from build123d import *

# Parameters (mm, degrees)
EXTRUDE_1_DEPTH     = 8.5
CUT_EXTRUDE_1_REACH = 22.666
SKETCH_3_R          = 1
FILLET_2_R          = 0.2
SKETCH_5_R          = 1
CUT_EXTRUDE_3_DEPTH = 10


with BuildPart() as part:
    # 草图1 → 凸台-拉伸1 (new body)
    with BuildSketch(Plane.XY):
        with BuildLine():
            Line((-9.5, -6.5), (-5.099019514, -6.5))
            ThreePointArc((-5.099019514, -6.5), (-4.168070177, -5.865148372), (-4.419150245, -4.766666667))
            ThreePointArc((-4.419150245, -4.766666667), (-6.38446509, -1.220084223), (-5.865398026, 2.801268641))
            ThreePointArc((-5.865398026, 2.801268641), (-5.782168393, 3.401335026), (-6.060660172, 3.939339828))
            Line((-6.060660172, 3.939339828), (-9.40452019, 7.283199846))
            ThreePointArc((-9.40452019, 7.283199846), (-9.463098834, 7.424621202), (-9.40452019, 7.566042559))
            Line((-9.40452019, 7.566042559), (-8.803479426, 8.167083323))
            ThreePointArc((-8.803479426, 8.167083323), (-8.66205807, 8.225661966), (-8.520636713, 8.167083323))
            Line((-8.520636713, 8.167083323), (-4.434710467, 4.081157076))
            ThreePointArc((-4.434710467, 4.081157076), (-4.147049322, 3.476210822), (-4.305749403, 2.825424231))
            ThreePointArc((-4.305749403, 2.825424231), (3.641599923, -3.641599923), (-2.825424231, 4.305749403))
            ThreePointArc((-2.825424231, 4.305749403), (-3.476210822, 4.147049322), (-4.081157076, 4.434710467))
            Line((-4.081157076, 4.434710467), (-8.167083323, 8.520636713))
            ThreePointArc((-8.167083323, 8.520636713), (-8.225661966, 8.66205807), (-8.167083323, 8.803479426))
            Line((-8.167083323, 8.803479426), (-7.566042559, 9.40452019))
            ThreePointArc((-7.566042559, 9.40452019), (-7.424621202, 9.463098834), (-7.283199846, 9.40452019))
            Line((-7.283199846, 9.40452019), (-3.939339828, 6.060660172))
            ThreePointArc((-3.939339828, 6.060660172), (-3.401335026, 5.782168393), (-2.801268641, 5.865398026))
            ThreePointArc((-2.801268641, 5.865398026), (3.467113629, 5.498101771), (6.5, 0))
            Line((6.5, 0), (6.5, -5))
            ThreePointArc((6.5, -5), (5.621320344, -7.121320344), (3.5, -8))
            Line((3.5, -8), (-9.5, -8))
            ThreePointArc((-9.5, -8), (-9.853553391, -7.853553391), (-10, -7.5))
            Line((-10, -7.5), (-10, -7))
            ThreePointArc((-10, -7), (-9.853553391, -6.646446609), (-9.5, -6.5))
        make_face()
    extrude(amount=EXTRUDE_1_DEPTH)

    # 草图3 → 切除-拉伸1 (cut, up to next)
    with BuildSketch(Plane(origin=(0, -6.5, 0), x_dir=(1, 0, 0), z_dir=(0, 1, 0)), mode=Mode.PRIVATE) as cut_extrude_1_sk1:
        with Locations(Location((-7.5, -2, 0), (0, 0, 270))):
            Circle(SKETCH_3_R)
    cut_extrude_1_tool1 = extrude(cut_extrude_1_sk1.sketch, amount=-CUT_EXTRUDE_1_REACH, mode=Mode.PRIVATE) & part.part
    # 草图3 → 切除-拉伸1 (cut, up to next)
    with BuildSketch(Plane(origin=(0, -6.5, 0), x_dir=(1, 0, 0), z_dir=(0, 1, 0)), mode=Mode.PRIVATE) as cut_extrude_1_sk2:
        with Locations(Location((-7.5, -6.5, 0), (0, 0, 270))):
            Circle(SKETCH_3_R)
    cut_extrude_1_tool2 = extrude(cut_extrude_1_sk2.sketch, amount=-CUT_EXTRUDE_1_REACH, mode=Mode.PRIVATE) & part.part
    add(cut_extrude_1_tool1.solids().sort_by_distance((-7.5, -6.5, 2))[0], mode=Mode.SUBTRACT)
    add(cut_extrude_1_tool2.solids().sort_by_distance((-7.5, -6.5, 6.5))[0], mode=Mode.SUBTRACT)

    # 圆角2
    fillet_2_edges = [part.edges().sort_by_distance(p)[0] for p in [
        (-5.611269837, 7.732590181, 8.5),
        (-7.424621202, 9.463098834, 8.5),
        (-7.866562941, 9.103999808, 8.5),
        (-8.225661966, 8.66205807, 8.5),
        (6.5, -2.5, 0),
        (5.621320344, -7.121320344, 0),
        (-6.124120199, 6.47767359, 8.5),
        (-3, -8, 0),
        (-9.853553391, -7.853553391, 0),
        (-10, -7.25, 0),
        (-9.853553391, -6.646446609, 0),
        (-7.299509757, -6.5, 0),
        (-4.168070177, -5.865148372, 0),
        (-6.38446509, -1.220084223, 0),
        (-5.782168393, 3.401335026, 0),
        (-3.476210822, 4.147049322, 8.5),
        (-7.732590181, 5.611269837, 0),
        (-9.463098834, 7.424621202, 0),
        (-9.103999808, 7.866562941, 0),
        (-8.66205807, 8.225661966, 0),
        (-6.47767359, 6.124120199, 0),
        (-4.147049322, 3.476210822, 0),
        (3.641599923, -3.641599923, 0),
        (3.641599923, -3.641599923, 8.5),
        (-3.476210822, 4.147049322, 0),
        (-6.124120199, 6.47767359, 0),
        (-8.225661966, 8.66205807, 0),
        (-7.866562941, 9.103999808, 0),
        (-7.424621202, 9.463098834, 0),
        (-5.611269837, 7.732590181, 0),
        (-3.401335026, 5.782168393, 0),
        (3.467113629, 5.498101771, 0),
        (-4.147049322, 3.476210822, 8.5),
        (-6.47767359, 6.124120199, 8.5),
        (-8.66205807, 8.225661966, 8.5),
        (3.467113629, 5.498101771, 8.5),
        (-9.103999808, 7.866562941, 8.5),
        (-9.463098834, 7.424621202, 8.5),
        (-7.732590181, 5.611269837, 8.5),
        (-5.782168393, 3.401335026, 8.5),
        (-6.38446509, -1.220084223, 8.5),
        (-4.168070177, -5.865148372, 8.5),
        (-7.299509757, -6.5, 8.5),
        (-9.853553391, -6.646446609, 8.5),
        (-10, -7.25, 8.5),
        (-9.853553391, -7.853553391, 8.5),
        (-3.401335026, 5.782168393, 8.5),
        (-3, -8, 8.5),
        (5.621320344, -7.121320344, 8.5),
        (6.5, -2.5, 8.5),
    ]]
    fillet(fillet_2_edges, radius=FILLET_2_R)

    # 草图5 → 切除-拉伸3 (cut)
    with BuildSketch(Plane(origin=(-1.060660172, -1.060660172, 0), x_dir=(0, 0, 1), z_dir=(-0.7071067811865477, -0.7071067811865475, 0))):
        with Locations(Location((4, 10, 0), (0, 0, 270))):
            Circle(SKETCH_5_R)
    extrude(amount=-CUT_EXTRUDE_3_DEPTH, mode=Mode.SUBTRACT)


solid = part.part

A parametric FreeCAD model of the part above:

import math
import FreeCAD as App
import Part
import Sketcher

V = App.Vector
Q = App.Units.Quantity


def edges_at(feature, points):
    """Names of the edges that pass closest to the given points."""
    edges = feature.Shape.Edges
    near = lambda p: min(range(len(edges)), key=lambda i: edges[i].distToShape(Part.Vertex(*p))[0])
    return sorted({f"Edge{near(p) + 1}" for p in points})

doc = App.newDocument("Part")
body = doc.addObject("PartDesign::Body", "Body")

# Sketch on XY plane
sketch1 = body.newObject("Sketcher::SketchObject", "Sketch")
sketch1.AttachmentSupport = (doc.getObject("XY_Plane"), [""])
sketch1.MapMode = "FlatFace"
sketch1.addGeometry([
    Part.LineSegment(V(-5.1, -6.5, 0), V(-9.5, -6.5, 0)),  # 0
    Part.ArcOfCircle(Part.Circle(V(-9.5, -7, 0), V(0, 0, 1), 0.5), math.radians(90), math.radians(180)),  # 1
    Part.LineSegment(V(-10, -7, 0), V(-10, -7.5, 0)),  # 2
    Part.ArcOfCircle(Part.Circle(V(-9.5, -7.5, 0), V(0, 0, 1), 0.5), math.radians(180), math.radians(270)),  # 3
    Part.LineSegment(V(-9.5, -8, 0), V(3.5, -8, 0)),  # 4
    Part.ArcOfCircle(Part.Circle(V(3.5, -5, 0), V(0, 0, 1), 3), math.radians(-90), math.radians(0)),  # 5
    Part.LineSegment(V(6.5, -5, 0), V(6.5, 0, 0)),  # 6
    Part.ArcOfCircle(Part.Circle(V(0, 0, 0), V(0, 0, 1), 6.5), math.radians(0), math.radians(116)),  # 7
    Part.ArcOfCircle(Part.Circle(V(-3.23, 6.77, 0), V(0, 0, 1), 1), math.radians(-135), math.radians(-64)),  # 8
    Part.LineSegment(V(-3.94, 6.06, 0), V(-7.28, 9.4, 0)),  # 9
    Part.ArcOfCircle(Part.Circle(V(-7.42, 9.26, 0), V(0, 0, 1), 0.2), math.radians(45), math.radians(135)),  # 10
    Part.LineSegment(V(-7.57, 9.4, 0), V(-8.17, 8.8, 0)),  # 11
    Part.ArcOfCircle(Part.Circle(V(-8.03, 8.66, 0), V(0, 0, 1), 0.2), math.radians(135), math.radians(225)),  # 12
    Part.LineSegment(V(-8.17, 8.52, 0), V(-4.08, 4.43, 0)),  # 13
    Part.ArcOfCircle(Part.Circle(V(-3.37, 5.14, 0), V(0, 0, 1), 1), math.radians(-135), math.radians(-57)),  # 14
    Part.ArcOfCircle(Part.Circle(V(0, 0, 0), V(0, 0, 1), 5.15), math.radians(147), math.radians(483)),  # 15
    Part.ArcOfCircle(Part.Circle(V(-5.14, 3.37, 0), V(0, 0, 1), 1), math.radians(-33), math.radians(45)),  # 16
    Part.LineSegment(V(-4.43, 4.08, 0), V(-8.52, 8.17, 0)),  # 17
    Part.ArcOfCircle(Part.Circle(V(-8.66, 8.03, 0), V(0, 0, 1), 0.2), math.radians(45), math.radians(135)),  # 18
    Part.LineSegment(V(-8.8, 8.17, 0), V(-9.4, 7.57, 0)),  # 19
    Part.ArcOfCircle(Part.Circle(V(-9.26, 7.42, 0), V(0, 0, 1), 0.2), math.radians(135), math.radians(225)),  # 20
    Part.LineSegment(V(-9.4, 7.28, 0), V(-6.06, 3.94, 0)),  # 21
    Part.ArcOfCircle(Part.Circle(V(-6.77, 3.23, 0), V(0, 0, 1), 1), math.radians(-26), math.radians(45)),  # 22
    Part.ArcOfCircle(Part.Circle(V(0, 0, 0), V(0, 0, 1), 6.5), math.radians(154), math.radians(227)),  # 23
    Part.ArcOfCircle(Part.Circle(V(-5.1, -5.5, 0), V(0, 0, 1), 1), math.radians(-90), math.radians(47)),  # 24
], False)
sketch1.addConstraint([
    Sketcher.Constraint("Tangent", 0, 2, 1, 1),
    Sketcher.Constraint("Tangent", 1, 2, 2, 1),
    Sketcher.Constraint("Tangent", 2, 2, 3, 1),
    Sketcher.Constraint("Tangent", 3, 2, 4, 1),
    Sketcher.Constraint("Tangent", 4, 2, 5, 1),
    Sketcher.Constraint("Tangent", 5, 2, 6, 1),
    Sketcher.Constraint("Tangent", 6, 2, 7, 1),
    Sketcher.Constraint("Tangent", 7, 2, 8, 2),
    Sketcher.Constraint("Tangent", 8, 1, 9, 1),
    Sketcher.Constraint("Tangent", 9, 2, 10, 1),
    Sketcher.Constraint("Tangent", 10, 2, 11, 1),
    Sketcher.Constraint("Tangent", 11, 2, 12, 1),
    Sketcher.Constraint("Tangent", 12, 2, 13, 1),
    Sketcher.Constraint("Tangent", 13, 2, 14, 1),
    Sketcher.Constraint("Tangent", 14, 2, 15, 2),
    Sketcher.Constraint("Tangent", 15, 1, 16, 1),
    Sketcher.Constraint("Tangent", 16, 2, 17, 1),
    Sketcher.Constraint("Tangent", 17, 2, 18, 1),
    Sketcher.Constraint("Tangent", 18, 2, 19, 1),
    Sketcher.Constraint("Tangent", 19, 2, 20, 1),
    Sketcher.Constraint("Tangent", 20, 2, 21, 1),
    Sketcher.Constraint("Tangent", 21, 2, 22, 2),
    Sketcher.Constraint("Tangent", 22, 1, 23, 1),
    Sketcher.Constraint("Tangent", 23, 2, 24, 2),
    Sketcher.Constraint("Tangent", 24, 1, 0, 1),
    Sketcher.Constraint("Horizontal", 0),
    Sketcher.Constraint("Vertical", 2),
    Sketcher.Constraint("Horizontal", 4),
    Sketcher.Constraint("Vertical", 6),
    Sketcher.Constraint("Coincident", 7, 3, -1, 1),
    Sketcher.Constraint("Coincident", 15, 3, -1, 1),
    Sketcher.Constraint("Coincident", 23, 3, -1, 1),
    Sketcher.Constraint("Equal", 1, 3),
    Sketcher.Constraint("Equal", 10, 12),
    Sketcher.Constraint("Equal", 8, 14),
    Sketcher.Constraint("Equal", 14, 16),
    Sketcher.Constraint("Equal", 12, 18),
    Sketcher.Constraint("Equal", 18, 20),
    Sketcher.Constraint("Equal", 16, 22),
    Sketcher.Constraint("Equal", 7, 23),
    Sketcher.Constraint("Equal", 22, 24),
    Sketcher.Constraint("Perpendicular", 9, 11),
    Sketcher.Constraint("Perpendicular", 11, 13),
    Sketcher.Constraint("Parallel", 13, 17),
    Sketcher.Constraint("Perpendicular", 17, 19),
    Sketcher.Constraint("Perpendicular", 19, 21),
    Sketcher.Constraint("Horizontal", 9, 2, 10, 2),
    Sketcher.Constraint("Equal", 13, 17),
    Sketcher.Constraint("Equal", 11, 19),
    Sketcher.Constraint("Equal", 9, 21),
    Sketcher.Constraint("Radius", 5, Q("3 mm")),
    Sketcher.Constraint("Radius", 8, Q("1 mm")),
    Sketcher.Constraint("Radius", 1, Q("0.5 mm")),
    Sketcher.Constraint("Radius", 7, Q("6.5 mm")),
    Sketcher.Constraint("Radius", 10, Q("0.2 mm")),
    Sketcher.Constraint("DistanceX", 4, 1, 4, 2, Q("13 mm")),
    Sketcher.Constraint("DistanceY", 6, 1, 6, 2, Q("5 mm")),
    Sketcher.Constraint("Radius", 15, Q("5.15 mm")),
    Sketcher.Constraint("DistanceY", 2, 2, 2, 1, Q("0.5 mm")),
    Sketcher.Constraint("Distance", 11, Q("0.85 mm")),
    Sketcher.Constraint("DistanceY", -1, 1, 10, 3, Q("9.263099 mm")),
    Sketcher.Constraint("DistanceY", -1, 1, 7, 2, Q("5.865398 mm")),
])
pad1 = body.newObject("PartDesign::Pad", "Pad")
pad1.Profile = sketch1
pad1.Length = 8.5

# Sketch on XZ plane
sketch2 = body.newObject("Sketcher::SketchObject", "Sketch001")
sketch2.AttachmentSupport = (doc.getObject("XZ_Plane"), [""])
sketch2.MapMode = "FlatFace"
sketch2.AttachmentOffset = App.Placement(V(0, 0, 6.5), App.Rotation())
sketch2.addGeometry(Part.Circle(V(-7.5, 2, 0), V(0, 0, 1), 1), False)
sketch2.addConstraint([
    Sketcher.Constraint("Diameter", 0, Q("2 mm")),
    Sketcher.Constraint("DistanceY", -1, 1, 0, 3, Q("2 mm")),
    Sketcher.Constraint("DistanceX", 0, 3, -1, 1, Q("7.5 mm")),
])
pocket1 = body.newObject("PartDesign::Pocket", "Pocket")
pocket1.Profile = sketch2
pocket1.Type = "UpToFirst"
pocket1.Reversed = True

# Sketch on XZ plane
sketch3 = body.newObject("Sketcher::SketchObject", "Sketch002")
sketch3.AttachmentSupport = (doc.getObject("XZ_Plane"), [""])
sketch3.MapMode = "FlatFace"
sketch3.AttachmentOffset = App.Placement(V(0, 0, 6.5), App.Rotation())
sketch3.addGeometry(Part.Circle(V(-7.5, 6.5, 0), V(0, 0, 1), 1), False)
sketch3.addConstraint([
    Sketcher.Constraint("Diameter", 0, Q("2 mm")),
    Sketcher.Constraint("DistanceX", 0, 3, -1, 1, Q("7.5 mm")),
    Sketcher.Constraint("DistanceY", -1, 1, 0, 3, Q("6.5 mm")),
])
pocket2 = body.newObject("PartDesign::Pocket", "Pocket001")
pocket2.Profile = sketch3
pocket2.Type = "UpToFirst"
pocket2.Reversed = True
doc.recompute()

fillet = body.newObject("PartDesign::Fillet", "Fillet")
fillet.Base = (pocket2, edges_at(pocket2, [
    (-5.611, 7.733, 8.5),
    (-7.425, 9.463, 8.5),
    (-7.867, 9.104, 8.5),
    (-8.226, 8.662, 8.5),
    (6.5, -2.5, 0),
    (5.621, -7.121, 0),
    (-6.124, 6.478, 8.5),
    (-3, -8, 0),
    (-9.854, -7.854, 0),
    (-10, -7.25, 0),
    (-9.854, -6.646, 0),
    (-7.3, -6.5, 0),
    (-4.168, -5.865, 0),
    (-6.384, -1.22, 0),
    (-5.782, 3.401, 0),
    (-3.476, 4.147, 8.5),
    (-7.733, 5.611, 0),
    (-9.463, 7.425, 0),
    (-9.104, 7.867, 0),
    (-8.662, 8.226, 0),
    (-6.478, 6.124, 0),
    (-4.147, 3.476, 0),
    (3.642, -3.642, 0),
    (3.642, -3.642, 8.5),
    (-3.476, 4.147, 0),
    (-6.124, 6.478, 0),
    (-8.226, 8.662, 0),
    (-7.867, 9.104, 0),
    (-7.425, 9.463, 0),
    (-5.611, 7.733, 0),
    (-3.401, 5.782, 0),
    (3.467, 5.498, 0),
    (-4.147, 3.476, 8.5),
    (-6.478, 6.124, 8.5),
    (-8.662, 8.226, 8.5),
    (3.467, 5.498, 8.5),
    (-9.104, 7.867, 8.5),
    (-9.463, 7.425, 8.5),
    (-7.733, 5.611, 8.5),
    (-5.782, 3.401, 8.5),
    (-6.384, -1.22, 8.5),
    (-4.168, -5.865, 8.5),
    (-7.3, -6.5, 8.5),
    (-9.854, -6.646, 8.5),
    (-10, -7.25, 8.5),
    (-9.854, -7.854, 8.5),
    (-3.401, 5.782, 8.5),
    (-3, -8, 8.5),
    (5.621, -7.121, 8.5),
    (6.5, -2.5, 8.5),
]))
fillet.Radius = 0.2

# Sketch on an angled plane
sketch4 = body.newObject("Sketcher::SketchObject", "Sketch003")
sketch4.Placement = App.Placement(V(-1.06066, -1.06066, 0), App.Rotation(V(0, 0, 1), V(-0.707106781, 0.707106781, 0), V(-0.707106781, -0.707106781, 0), "ZXY"))
sketch4.addGeometry(Part.Circle(V(4, 10, 0), V(0, 0, 1), 1), False)
sketch4.addConstraint([
    Sketcher.Constraint("Diameter", 0, Q("2 mm")),
    Sketcher.Constraint("DistanceX", -1, 1, 0, 3, Q("4 mm")),
    Sketcher.Constraint("DistanceY", -1, 1, 0, 3, Q("10 mm")),
])
pocket3 = body.newObject("PartDesign::Pocket", "Pocket002")
pocket3.Profile = sketch4
pocket3.Length = 10

doc.recompute()
